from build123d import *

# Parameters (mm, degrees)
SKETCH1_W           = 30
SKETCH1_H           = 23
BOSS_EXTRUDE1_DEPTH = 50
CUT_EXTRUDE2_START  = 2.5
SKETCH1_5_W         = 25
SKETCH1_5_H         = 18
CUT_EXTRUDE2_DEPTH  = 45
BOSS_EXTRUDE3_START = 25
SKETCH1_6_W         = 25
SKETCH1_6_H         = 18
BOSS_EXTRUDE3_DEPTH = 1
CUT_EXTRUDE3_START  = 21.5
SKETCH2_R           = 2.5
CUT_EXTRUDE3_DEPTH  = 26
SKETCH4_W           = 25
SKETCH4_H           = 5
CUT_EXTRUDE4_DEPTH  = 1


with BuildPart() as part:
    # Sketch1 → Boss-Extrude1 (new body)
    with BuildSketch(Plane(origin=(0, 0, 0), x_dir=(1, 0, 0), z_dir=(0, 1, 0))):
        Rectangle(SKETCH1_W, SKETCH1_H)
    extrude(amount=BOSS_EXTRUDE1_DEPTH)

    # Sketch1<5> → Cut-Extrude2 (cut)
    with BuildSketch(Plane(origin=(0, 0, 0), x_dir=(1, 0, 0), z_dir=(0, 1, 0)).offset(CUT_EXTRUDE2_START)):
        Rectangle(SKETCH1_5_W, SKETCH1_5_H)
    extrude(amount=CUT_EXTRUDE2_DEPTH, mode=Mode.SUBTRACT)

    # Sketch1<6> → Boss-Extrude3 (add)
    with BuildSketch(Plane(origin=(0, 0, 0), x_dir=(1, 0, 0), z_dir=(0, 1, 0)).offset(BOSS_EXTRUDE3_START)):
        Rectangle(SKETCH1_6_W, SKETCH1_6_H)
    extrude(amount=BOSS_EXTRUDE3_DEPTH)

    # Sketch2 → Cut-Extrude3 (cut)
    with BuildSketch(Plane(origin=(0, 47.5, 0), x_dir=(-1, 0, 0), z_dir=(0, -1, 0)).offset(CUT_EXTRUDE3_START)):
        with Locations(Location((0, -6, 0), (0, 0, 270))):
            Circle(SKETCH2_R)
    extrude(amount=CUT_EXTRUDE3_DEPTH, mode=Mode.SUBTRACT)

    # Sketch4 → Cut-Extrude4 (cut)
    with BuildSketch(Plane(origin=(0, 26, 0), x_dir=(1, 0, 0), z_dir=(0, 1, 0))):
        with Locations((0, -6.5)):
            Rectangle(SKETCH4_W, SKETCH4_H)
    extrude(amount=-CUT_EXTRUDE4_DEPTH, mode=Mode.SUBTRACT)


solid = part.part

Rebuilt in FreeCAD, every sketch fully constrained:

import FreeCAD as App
import Part
import Sketcher

V = App.Vector
Q = App.Units.Quantity


def add_polygon(sketch, points):
    """Adds a closed chain of lines whose ends are joined by coincident constraints."""
    first, n = sketch.GeometryCount, len(points)
    for a, b in zip(points, points[1:] + points[:1]):
        sketch.addGeometry(Part.LineSegment(App.Vector(*a, 0), App.Vector(*b, 0)), False)
    for i in range(n):
        sketch.addConstraint(Sketcher.Constraint("Coincident", first + i, 2, first + (i + 1) % n, 1))

doc = App.newDocument("Part")
params = doc.addObject("Spreadsheet::Sheet", "Params")
for row, (alias, value) in enumerate([
    ("sketch1_width", "30 mm"),
    ("sketch1_height", "23 mm"),
    ("pad1_length", "50 mm"),
    ("sketch2_width", "25 mm"),
    ("sketch2_height", "18 mm"),
    ("pocket1_length", "45 mm"),
    ("sketch3_width", "25 mm"),
    ("sketch3_height", "18 mm"),
    ("pad2_length", "1 mm"),
    ("sketch4_diameter", "5 mm"),
    ("pocket2_length", "26 mm"),
    ("sketch5_width", "25 mm"),
    ("sketch5_height", "5 mm"),
    ("pocket3_length", "1 mm"),
], start=1):
    params.set(f"A{row}", alias)
    params.set(f"B{row}", "=" + value)
    params.setAlias(f"B{row}", alias)

body = doc.addObject("PartDesign::Body", "Body")

sketch1 = body.newObject("Sketcher::SketchObject", "Sketch")
sketch1.AttachmentSupport = (doc.getObject("XZ_Plane"), [""])
sketch1.MapMode = "FlatFace"
add_polygon(sketch1, [(-15, -11.5), (-15, 11.5), (15, 11.5), (15, -11.5)])
sketch1.addConstraint([
    Sketcher.Constraint("Vertical", 0),
    Sketcher.Constraint("Horizontal", 1),
    Sketcher.Constraint("Vertical", 2),
    Sketcher.Constraint("Horizontal", 3),
    Sketcher.Constraint("Symmetric", 0, 2, 2, 2, -1, 1),
    Sketcher.Constraint("DistanceX", 1, 1, 1, 2, Q("30 mm")),
    Sketcher.Constraint("DistanceY", 0, 1, 0, 2, Q("23 mm")),
])
sketch1.setExpression("Constraints[9]", "Params.sketch1_width")
sketch1.setExpression("Constraints[10]", "Params.sketch1_height")
pad1 = body.newObject("PartDesign::Pad", "Pad")
pad1.Profile = sketch1
pad1.setExpression("Length", "Params.pad1_length")
pad1.Reversed = True

sketch2 = body.newObject("Sketcher::SketchObject", "Sketch001")
sketch2.AttachmentSupport = (doc.getObject("XZ_Plane"), [""])
sketch2.MapMode = "FlatFace"
sketch2.AttachmentOffset = App.Placement(V(0, 0, -2.5), App.Rotation())
add_polygon(sketch2, [(-12.5, -9), (-12.5, 9), (12.5, 9), (12.5, -9)])
sketch2.addConstraint([
    Sketcher.Constraint("Vertical", 0),
    Sketcher.Constraint("Horizontal", 1),
    Sketcher.Constraint("Vertical", 2),
    Sketcher.Constraint("Horizontal", 3),
    Sketcher.Constraint("Symmetric", 0, 2, 2, 2, -1, 1),
    Sketcher.Constraint("DistanceX", 1, 1, 1, 2, Q("25 mm")),
    Sketcher.Constraint("DistanceY", 0, 1, 0, 2, Q("18 mm")),
])
sketch2.setExpression("Constraints[9]", "Params.sketch2_width")
sketch2.setExpression("Constraints[10]", "Params.sketch2_height")
pocket1 = body.newObject("PartDesign::Pocket", "Pocket")
pocket1.Profile = sketch2
pocket1.setExpression("Length", "Params.pocket1_length")

sketch3 = body.newObject("Sketcher::SketchObject", "Sketch002")
sketch3.AttachmentSupport = (doc.getObject("XZ_Plane"), [""])
sketch3.MapMode = "FlatFace"
sketch3.AttachmentOffset = App.Placement(V(0, 0, -25), App.Rotation())
add_polygon(sketch3, [(-12.5, -9), (-12.5, 9), (12.5, 9), (12.5, -9)])
sketch3.addConstraint([
    Sketcher.Constraint("Vertical", 0),
    Sketcher.Constraint("Horizontal", 1),
    Sketcher.Constraint("Vertical", 2),
    Sketcher.Constraint("Horizontal", 3),
    Sketcher.Constraint("Symmetric", 0, 2, 2, 2, -1, 1),
    Sketcher.Constraint("DistanceX", 1, 1, 1, 2, Q("25 mm")),
    Sketcher.Constraint("DistanceY", 0, 1, 0, 2, Q("18 mm")),
])
sketch3.setExpression("Constraints[9]", "Params.sketch3_width")
sketch3.setExpression("Constraints[10]", "Params.sketch3_height")
pad2 = body.newObject("PartDesign::Pad", "Pad001")
pad2.Profile = sketch3
pad2.setExpression("Length", "Params.pad2_length")
pad2.Reversed = True

sketch4 = body.newObject("Sketcher::SketchObject", "Sketch003")
sketch4.AttachmentSupport = (doc.getObject("XZ_Plane"), [""])
sketch4.MapMode = "FlatFace"
sketch4.AttachmentOffset = App.Placement(V(0, 0, -26), App.Rotation())
sketch4.addGeometry(Part.Circle(V(0, 6, 0), V(0, 0, 1), 2.5), False)
sketch4.addConstraint([
    Sketcher.Constraint("PointOnObject", 0, 3, -2),
    Sketcher.Constraint("Diameter", 0, Q("5 mm")),
    Sketcher.Constraint("DistanceY", -1, 1, 0, 3, Q("6 mm")),
])
sketch4.setExpression("Constraints[1]", "Params.sketch4_diameter")
pocket2 = body.newObject("PartDesign::Pocket", "Pocket001")
pocket2.Profile = sketch4
pocket2.setExpression("Length", "Params.pocket2_length")
pocket2.Reversed = True

sketch5 = body.newObject("Sketcher::SketchObject", "Sketch004")
sketch5.AttachmentSupport = (doc.getObject("XZ_Plane"), [""])
sketch5.MapMode = "FlatFace"
sketch5.AttachmentOffset = App.Placement(V(0, 0, -26), App.Rotation())
add_polygon(sketch5, [(-12.5, 4), (-12.5, 9), (12.5, 9), (12.5, 4)])
sketch5.addConstraint([
    Sketcher.Constraint("Vertical", 0),
    Sketcher.Constraint("Horizontal", 1),
    Sketcher.Constraint("Vertical", 2),
    Sketcher.Constraint("Horizontal", 3),
    Sketcher.Constraint("DistanceX", 1, 1, 1, 2, Q("25 mm")),
    Sketcher.Constraint("DistanceY", 0, 1, 0, 2, Q("5 mm")),
    Sketcher.Constraint("DistanceY", -1, 1, 0, 2, Q("9 mm")),
    Sketcher.Constraint("DistanceX", 0, 2, -1, 1, Q("12.5 mm")),
])
sketch5.setExpression("Constraints[8]", "Params.sketch5_width")
sketch5.setExpression("Constraints[9]", "Params.sketch5_height")
pocket3 = body.newObject("PartDesign::Pocket", "Pocket002")
pocket3.Profile = sketch5
pocket3.setExpression("Length", "Params.pocket3_length")
pocket3.Reversed = True

doc.recompute()
